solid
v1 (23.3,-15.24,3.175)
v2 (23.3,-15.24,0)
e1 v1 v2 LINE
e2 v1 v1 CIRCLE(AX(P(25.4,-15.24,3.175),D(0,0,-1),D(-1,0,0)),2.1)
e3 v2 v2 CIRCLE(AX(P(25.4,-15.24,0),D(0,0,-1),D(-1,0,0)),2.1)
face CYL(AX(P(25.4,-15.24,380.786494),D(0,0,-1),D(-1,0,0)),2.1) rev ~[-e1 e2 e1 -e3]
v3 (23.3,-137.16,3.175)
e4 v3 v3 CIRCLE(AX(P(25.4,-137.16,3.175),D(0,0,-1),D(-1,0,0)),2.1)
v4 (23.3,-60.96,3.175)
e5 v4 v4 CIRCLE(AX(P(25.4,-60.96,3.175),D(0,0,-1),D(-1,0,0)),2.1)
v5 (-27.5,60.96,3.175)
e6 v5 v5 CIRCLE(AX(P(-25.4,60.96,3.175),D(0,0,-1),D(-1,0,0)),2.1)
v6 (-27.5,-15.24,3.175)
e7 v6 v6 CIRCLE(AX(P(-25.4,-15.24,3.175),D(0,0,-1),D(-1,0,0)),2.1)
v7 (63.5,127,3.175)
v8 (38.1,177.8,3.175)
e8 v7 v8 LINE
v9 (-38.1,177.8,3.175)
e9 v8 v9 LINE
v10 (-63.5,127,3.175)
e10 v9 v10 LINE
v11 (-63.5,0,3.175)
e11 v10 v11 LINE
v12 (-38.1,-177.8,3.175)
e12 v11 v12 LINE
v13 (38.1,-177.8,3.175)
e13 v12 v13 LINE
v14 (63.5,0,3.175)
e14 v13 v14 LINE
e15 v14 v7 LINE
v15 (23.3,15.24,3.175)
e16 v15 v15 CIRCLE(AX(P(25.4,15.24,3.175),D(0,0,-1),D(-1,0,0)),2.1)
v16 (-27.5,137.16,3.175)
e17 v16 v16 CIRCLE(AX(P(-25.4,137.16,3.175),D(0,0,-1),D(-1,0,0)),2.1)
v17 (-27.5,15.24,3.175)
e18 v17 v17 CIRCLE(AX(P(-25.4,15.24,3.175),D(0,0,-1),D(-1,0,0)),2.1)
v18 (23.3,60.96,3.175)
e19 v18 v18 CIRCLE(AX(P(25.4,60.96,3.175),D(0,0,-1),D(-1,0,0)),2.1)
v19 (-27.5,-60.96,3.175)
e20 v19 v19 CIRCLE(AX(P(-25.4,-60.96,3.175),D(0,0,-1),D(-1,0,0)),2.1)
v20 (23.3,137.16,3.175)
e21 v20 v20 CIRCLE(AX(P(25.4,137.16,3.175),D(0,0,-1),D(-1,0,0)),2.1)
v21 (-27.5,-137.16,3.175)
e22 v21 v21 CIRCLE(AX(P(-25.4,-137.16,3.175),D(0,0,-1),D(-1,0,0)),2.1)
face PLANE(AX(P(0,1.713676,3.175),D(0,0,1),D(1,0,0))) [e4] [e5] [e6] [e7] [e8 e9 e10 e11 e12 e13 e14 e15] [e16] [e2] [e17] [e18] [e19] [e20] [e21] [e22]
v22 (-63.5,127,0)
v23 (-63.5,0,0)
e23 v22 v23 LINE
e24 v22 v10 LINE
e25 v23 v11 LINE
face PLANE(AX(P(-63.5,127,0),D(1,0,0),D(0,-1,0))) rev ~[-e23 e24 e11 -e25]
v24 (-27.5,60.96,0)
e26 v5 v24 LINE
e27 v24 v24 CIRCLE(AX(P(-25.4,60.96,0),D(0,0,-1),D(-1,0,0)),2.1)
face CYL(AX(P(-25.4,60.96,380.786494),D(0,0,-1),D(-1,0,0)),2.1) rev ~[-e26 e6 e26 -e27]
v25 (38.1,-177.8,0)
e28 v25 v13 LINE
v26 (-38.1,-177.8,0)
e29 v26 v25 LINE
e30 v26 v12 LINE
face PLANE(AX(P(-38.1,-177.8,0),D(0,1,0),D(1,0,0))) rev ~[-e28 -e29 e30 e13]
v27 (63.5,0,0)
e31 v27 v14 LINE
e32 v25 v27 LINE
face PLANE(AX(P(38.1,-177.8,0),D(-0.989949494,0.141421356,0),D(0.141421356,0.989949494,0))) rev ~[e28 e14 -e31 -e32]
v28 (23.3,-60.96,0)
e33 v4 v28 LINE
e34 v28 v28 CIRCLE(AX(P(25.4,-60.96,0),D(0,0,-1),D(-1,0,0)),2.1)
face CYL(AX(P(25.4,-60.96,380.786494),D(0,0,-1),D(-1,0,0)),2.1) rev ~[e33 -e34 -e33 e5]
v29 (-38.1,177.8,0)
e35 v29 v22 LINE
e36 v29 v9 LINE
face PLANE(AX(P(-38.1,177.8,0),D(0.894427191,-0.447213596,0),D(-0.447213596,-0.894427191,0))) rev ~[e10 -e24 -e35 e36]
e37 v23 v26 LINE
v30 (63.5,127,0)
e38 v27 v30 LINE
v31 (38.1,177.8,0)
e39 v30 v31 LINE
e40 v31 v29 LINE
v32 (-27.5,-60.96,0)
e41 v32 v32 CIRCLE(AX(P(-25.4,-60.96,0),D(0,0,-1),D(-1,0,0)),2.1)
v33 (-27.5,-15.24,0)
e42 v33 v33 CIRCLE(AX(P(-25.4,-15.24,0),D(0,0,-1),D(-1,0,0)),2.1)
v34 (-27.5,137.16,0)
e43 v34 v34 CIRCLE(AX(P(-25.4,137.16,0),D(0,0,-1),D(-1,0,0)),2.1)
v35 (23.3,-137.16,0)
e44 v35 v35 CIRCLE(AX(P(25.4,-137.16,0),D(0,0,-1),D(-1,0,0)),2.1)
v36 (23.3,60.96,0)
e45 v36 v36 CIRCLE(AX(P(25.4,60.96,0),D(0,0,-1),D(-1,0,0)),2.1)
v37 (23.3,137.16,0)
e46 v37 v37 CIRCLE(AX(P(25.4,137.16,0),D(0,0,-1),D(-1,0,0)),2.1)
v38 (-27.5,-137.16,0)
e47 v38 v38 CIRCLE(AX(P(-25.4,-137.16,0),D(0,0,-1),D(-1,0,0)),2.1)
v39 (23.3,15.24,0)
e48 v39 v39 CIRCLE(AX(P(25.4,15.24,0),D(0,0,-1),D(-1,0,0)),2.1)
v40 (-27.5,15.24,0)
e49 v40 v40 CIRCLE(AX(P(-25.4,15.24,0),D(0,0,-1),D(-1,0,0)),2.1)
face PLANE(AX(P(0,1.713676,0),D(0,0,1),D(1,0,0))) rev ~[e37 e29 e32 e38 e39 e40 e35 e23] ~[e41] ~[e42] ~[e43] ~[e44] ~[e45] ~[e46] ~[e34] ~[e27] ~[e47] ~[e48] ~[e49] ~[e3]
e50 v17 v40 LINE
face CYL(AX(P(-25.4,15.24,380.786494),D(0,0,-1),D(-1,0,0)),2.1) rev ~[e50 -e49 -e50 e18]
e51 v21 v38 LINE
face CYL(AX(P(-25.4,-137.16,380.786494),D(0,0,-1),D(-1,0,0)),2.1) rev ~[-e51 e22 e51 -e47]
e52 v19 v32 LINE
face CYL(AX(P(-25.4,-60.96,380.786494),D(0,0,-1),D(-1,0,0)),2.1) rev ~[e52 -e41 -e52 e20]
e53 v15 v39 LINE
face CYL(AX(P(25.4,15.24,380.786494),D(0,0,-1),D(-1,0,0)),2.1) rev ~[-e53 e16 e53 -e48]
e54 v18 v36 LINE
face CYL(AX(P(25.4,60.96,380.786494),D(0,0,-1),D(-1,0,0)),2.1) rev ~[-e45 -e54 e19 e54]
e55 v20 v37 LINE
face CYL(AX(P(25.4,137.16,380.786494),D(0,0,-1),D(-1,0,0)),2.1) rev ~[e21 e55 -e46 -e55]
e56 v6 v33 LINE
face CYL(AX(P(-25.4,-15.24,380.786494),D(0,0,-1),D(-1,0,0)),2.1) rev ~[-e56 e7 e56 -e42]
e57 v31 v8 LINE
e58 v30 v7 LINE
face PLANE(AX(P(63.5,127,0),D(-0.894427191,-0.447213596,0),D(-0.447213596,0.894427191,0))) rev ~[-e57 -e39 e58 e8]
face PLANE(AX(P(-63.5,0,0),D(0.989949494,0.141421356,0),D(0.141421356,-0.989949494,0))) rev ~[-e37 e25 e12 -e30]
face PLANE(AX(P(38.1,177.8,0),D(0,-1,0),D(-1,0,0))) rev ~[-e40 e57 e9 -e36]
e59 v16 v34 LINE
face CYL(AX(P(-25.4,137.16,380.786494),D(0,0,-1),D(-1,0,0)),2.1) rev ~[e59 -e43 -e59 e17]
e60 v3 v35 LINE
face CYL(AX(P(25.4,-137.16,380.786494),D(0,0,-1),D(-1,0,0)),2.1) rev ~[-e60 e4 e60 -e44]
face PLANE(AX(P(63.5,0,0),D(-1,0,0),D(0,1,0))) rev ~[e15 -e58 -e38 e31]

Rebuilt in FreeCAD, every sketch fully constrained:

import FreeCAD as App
import Part
import Sketcher
Q = App.Units.Quantity

doc = App.newDocument("Part")
body = doc.addObject("PartDesign::Body", "Body")

# Sketch on XY plane
sketch1 = body.newObject("Sketcher::SketchObject", "Sketch")
sketch1.AttachmentSupport = (doc.getObject("XY_Plane"), [""])
sketch1.MapMode = "FlatFace"
sketch1.addGeometry([
    Part.LineSegment(App.Vector(38.1, -177.8, 0), App.Vector(63.5, 0, 0)),  # 0
    Part.LineSegment(App.Vector(63.5, 0, 0), App.Vector(63.5, 127, 0)),  # 1
    Part.LineSegment(App.Vector(63.5, 127, 0), App.Vector(38.1, 177.8, 0)),  # 2
    Part.LineSegment(App.Vector(38.1, 177.8, 0), App.Vector(-38.1, 177.8, 0)),  # 3
    Part.LineSegment(App.Vector(-38.1, 177.8, 0), App.Vector(-63.5, 127, 0)),  # 4
    Part.LineSegment(App.Vector(-63.5, 127, 0), App.Vector(-63.5, 0, 0)),  # 5
    Part.LineSegment(App.Vector(-63.5, 0, 0), App.Vector(-38.1, -177.8, 0)),  # 6
    Part.LineSegment(App.Vector(-38.1, -177.8, 0), App.Vector(38.1, -177.8, 0)),  # 7
], False)
sketch1.addConstraint([
    Sketcher.Constraint("Coincident", 0, 2, 1, 1),
    Sketcher.Constraint("Coincident", 1, 2, 2, 1),
    Sketcher.Constraint("Coincident", 2, 2, 3, 1),
    Sketcher.Constraint("Coincident", 3, 2, 4, 1),
    Sketcher.Constraint("Coincident", 4, 2, 5, 1),
    Sketcher.Constraint("Coincident", 5, 2, 6, 1),
    Sketcher.Constraint("Coincident", 6, 2, 7, 1),
    Sketcher.Constraint("Coincident", 7, 2, 0, 1),
    Sketcher.Constraint("Vertical", 1),
    Sketcher.Constraint("Horizontal", 3),
    Sketcher.Constraint("Vertical", 5),
    Sketcher.Constraint("Horizontal", 7),
    Sketcher.Constraint("Symmetric", 0, 2, 5, 2, -1, 1),
    Sketcher.Constraint("Symmetric", 2, 2, 6, 2, -1, 1),
    Sketcher.Constraint("PointOnObject", 0, 2, -1),
    Sketcher.Constraint("Horizontal", 1, 2, 4, 2),
    Sketcher.Constraint("Vertical", 3, 2, 6, 2),
    Sketcher.Constraint("Vertical", 2, 2, 7, 2),
    Sketcher.Constraint("DistanceX", 3, 2, 3, 1, Q("3 in")),
    Sketcher.Constraint("DistanceY", 1, 1, 1, 2, Q("5 in")),
    Sketcher.Constraint("DistanceY", -1, 1, 2, 2, Q("7 in")),
    Sketcher.Constraint("DistanceX", 2, 2, 1, 2, Q("1 in")),
])
pad1 = body.newObject("PartDesign::Pad", "Pad")
pad1.Profile = sketch1
pad1.Length = Q("0.125 in")

# Sketch on XY plane
sketch2 = body.newObject("Sketcher::SketchObject", "Sketch001")
sketch2.AttachmentSupport = (doc.getObject("XY_Plane"), [""])
sketch2.MapMode = "FlatFace"
sketch2.AttachmentOffset = App.Placement(App.Vector(0, 0, 0.125 * 25.4), App.Rotation())
sketch2.addGeometry([
    Part.Circle(App.Vector(-25.4, 137.16, 0), App.Vector(0, 0, 1), 2.1),  # 0
    Part.Circle(App.Vector(25.4, 137.16, 0), App.Vector(0, 0, 1), 2.1),  # 1
    Part.Circle(App.Vector(25.4, 60.96, 0), App.Vector(0, 0, 1), 2.1),  # 2
    Part.Circle(App.Vector(-25.4, 60.96, 0), App.Vector(0, 0, 1), 2.1),  # 3
    Part.Circle(App.Vector(-25.4, 15.24, 0), App.Vector(0, 0, 1), 2.1),  # 4
    Part.Circle(App.Vector(25.4, 15.24, 0), App.Vector(0, 0, 1), 2.1),  # 5
    Part.Circle(App.Vector(25.4, -60.96, 0), App.Vector(0, 0, 1), 2.1),  # 6
    Part.Circle(App.Vector(-25.4, -60.96, 0), App.Vector(0, 0, 1), 2.1),  # 7
    Part.Circle(App.Vector(-25.4, -137.16, 0), App.Vector(0, 0, 1), 2.1),  # 8
    Part.Circle(App.Vector(25.4, -137.16, 0), App.Vector(0, 0, 1), 2.1),  # 9
    Part.Circle(App.Vector(-25.4, -15.24, 0), App.Vector(0, 0, 1), 2.1),  # 10
    Part.Circle(App.Vector(25.4, -15.24, 0), App.Vector(0, 0, 1), 2.1),  # 11
], False)
sketch2.addConstraint([
    Sketcher.Constraint("Equal", 0, 1),
    Sketcher.Constraint("Equal", 1, 2),
    Sketcher.Constraint("Equal", 2, 3),
    Sketcher.Constraint("Equal", 3, 4),
    Sketcher.Constraint("Equal", 4, 5),
    Sketcher.Constraint("Equal", 5, 6),
    Sketcher.Constraint("Equal", 6, 7),
    Sketcher.Constraint("Equal", 7, 8),
    Sketcher.Constraint("Equal", 8, 9),
    Sketcher.Constraint("Equal", 9, 10),
    Sketcher.Constraint("Equal", 10, 11),
    Sketcher.Constraint("Symmetric", 3, 3, 6, 3, -1, 1),
    Sketcher.Constraint("Symmetric", 2, 3, 7, 3, -1, 1),
    Sketcher.Constraint("Symmetric", 1, 3, 8, 3, -1, 1),
    Sketcher.Constraint("Symmetric", 0, 3, 9, 3, -1, 1),
    Sketcher.Constraint("Symmetric", 5, 3, 10, 3, -1, 1),
    Sketcher.Constraint("Symmetric", 4, 3, 11, 3, -1, 1),
    Sketcher.Constraint("Symmetric", 0, 3, 1, 3, -2),
    Sketcher.Constraint("Symmetric", 2, 3, 3, 3, -2),
    Sketcher.Constraint("Symmetric", 4, 3, 5, 3, -2),
    Sketcher.Constraint("Vertical", 1, 3, 2, 3),
    Sketcher.Constraint("Vertical", 3, 3, 4, 3),
    Sketcher.Constraint("DistanceX", 0, 3, -1, 1, Q("1 in")),
    Sketcher.Constraint("DistanceY", 2, 3, 1, 3, Q("3 in")),
    Sketcher.Constraint("DistanceY", 6, 3, 5, 3, Q("3 in")),
    Sketcher.Constraint("DistanceY", -1, 1, 0, 3, Q("5.4 in")),
    Sketcher.Constraint("Diameter", 0, Q("4.2 mm")),
])
doc.recompute()
hole = body.newObject("PartDesign::Hole", "Hole")
hole.Profile = sketch2
hole.ThreadType = "None"
hole.Diameter = 4.2
hole.DepthType = "ThroughAll"

doc.recompute()
